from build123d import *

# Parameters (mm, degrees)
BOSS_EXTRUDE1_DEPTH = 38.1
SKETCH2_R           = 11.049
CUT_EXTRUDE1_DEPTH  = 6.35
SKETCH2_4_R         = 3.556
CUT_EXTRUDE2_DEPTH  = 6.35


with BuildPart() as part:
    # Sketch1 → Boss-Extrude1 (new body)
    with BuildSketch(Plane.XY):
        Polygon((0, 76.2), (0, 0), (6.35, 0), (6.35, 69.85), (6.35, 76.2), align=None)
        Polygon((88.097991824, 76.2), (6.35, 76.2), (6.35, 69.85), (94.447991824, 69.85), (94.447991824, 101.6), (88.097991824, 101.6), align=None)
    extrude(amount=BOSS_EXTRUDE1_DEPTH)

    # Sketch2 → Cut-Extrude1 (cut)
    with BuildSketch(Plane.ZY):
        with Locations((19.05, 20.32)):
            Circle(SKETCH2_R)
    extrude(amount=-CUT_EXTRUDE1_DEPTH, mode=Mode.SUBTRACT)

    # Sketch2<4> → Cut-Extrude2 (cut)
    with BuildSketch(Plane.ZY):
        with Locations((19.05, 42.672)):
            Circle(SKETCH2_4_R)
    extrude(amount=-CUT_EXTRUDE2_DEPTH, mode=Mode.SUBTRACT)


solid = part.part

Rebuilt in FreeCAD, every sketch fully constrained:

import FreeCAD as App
import Part
import Sketcher

V = App.Vector
Q = App.Units.Quantity

doc = App.newDocument("Part")
body = doc.addObject("PartDesign::Body", "Body")

# Sketch on XY plane
sketch1 = body.newObject("Sketcher::SketchObject", "Sketch")
sketch1.AttachmentSupport = (doc.getObject("XY_Plane"), [""])
sketch1.MapMode = "FlatFace"
sketch1.addGeometry([
    Part.LineSegment(V(0, 76, 0), V(0, 0, 0)),  # 0
    Part.LineSegment(V(0, 0, 0), V(6, 0, 0)),  # 1
    Part.LineSegment(V(6, 0, 0), V(6, 70, 0)),  # 2
    Part.LineSegment(V(6, 70, 0), V(94, 70, 0)),  # 3
    Part.LineSegment(V(94, 70, 0), V(94, 102, 0)),  # 4
    Part.LineSegment(V(94, 102, 0), V(88, 102, 0)),  # 5
    Part.LineSegment(V(88, 102, 0), V(88, 76, 0)),  # 6
    Part.LineSegment(V(88, 76, 0), V(0, 76, 0)),  # 7
], False)
sketch1.addConstraint([
    Sketcher.Constraint("Coincident", 0, 2, 1, 1),
    Sketcher.Constraint("Coincident", 1, 2, 2, 1),
    Sketcher.Constraint("Coincident", 2, 2, 3, 1),
    Sketcher.Constraint("Coincident", 3, 2, 4, 1),
    Sketcher.Constraint("Coincident", 4, 2, 5, 1),
    Sketcher.Constraint("Coincident", 5, 2, 6, 1),
    Sketcher.Constraint("Coincident", 6, 2, 7, 1),
    Sketcher.Constraint("Coincident", 7, 2, 0, 1),
    Sketcher.Constraint("Vertical", 0),
    Sketcher.Constraint("Horizontal", 1),
    Sketcher.Constraint("Vertical", 2),
    Sketcher.Constraint("Horizontal", 3),
    Sketcher.Constraint("Vertical", 4),
    Sketcher.Constraint("Horizontal", 5),
    Sketcher.Constraint("Vertical", 6),
    Sketcher.Constraint("Horizontal", 7),
    Sketcher.Constraint("Coincident", 0, 2, -1, 1),
    Sketcher.Constraint("Equal", 1, 5),
    Sketcher.Constraint("DistanceY", 0, 2, 0, 1, Q("3 in")),
    Sketcher.Constraint("DistanceY", 6, 2, 6, 1, Q("1 in")),
    Sketcher.Constraint("DistanceX", 1, 1, 1, 2, Q("0.25 in")),
    Sketcher.Constraint("DistanceY", 2, 1, 2, 2, Q("2.75 in")),
    Sketcher.Constraint("DistanceX", 3, 1, 3, 2, 88.097992),
])
pad1 = body.newObject("PartDesign::Pad", "Pad")
pad1.Profile = sketch1
pad1.Length = Q("1.5 in")

# Sketch on YZ plane
sketch2 = body.newObject("Sketcher::SketchObject", "Sketch001")
sketch2.AttachmentSupport = (doc.getObject("YZ_Plane"), [""])
sketch2.MapMode = "FlatFace"
sketch2.addGeometry(Part.Circle(V(20, 19, 0), V(0, 0, 1), 11), False)
sketch2.addConstraint([
    Sketcher.Constraint("Diameter", 0, Q("0.87 in")),
    Sketcher.Constraint("DistanceX", -1, 1, 0, 3, Q("0.8 in")),
    Sketcher.Constraint("DistanceY", -1, 1, 0, 3, Q("0.75 in")),
])
pocket1 = body.newObject("PartDesign::Pocket", "Pocket")
pocket1.Profile = sketch2
pocket1.Length = Q("0.25 in")
pocket1.Reversed = True

# Sketch on YZ plane
sketch3 = body.newObject("Sketcher::SketchObject", "Sketch002")
sketch3.AttachmentSupport = (doc.getObject("YZ_Plane"), [""])
sketch3.MapMode = "FlatFace"
sketch3.addGeometry(Part.Circle(V(42.7, 19.1, 0), V(0, 0, 1), 3.6), False)
sketch3.addConstraint([
    Sketcher.Constraint("Diameter", 0, Q("0.28 in")),
    Sketcher.Constraint("DistanceX", -1, 1, 0, 3, Q("1.68 in")),
    Sketcher.Constraint("DistanceY", -1, 1, 0, 3, Q("0.75 in")),
])
pocket2 = body.newObject("PartDesign::Pocket", "Pocket001")
pocket2.Profile = sketch3
pocket2.Length = Q("0.25 in")
pocket2.Reversed = True

doc.recompute()
